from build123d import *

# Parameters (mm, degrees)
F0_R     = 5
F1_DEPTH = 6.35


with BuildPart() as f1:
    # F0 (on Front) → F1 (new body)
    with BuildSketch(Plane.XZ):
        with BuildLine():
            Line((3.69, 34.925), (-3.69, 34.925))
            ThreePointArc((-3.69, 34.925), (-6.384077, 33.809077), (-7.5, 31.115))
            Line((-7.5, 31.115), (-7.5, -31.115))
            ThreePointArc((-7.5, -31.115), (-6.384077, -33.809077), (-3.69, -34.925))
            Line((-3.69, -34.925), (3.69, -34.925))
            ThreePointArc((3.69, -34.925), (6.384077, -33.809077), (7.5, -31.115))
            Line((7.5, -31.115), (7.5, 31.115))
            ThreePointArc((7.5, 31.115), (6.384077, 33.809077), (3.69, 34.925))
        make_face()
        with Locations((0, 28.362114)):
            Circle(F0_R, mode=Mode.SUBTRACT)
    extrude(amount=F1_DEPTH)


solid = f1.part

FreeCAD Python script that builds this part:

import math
import FreeCAD as App
import Part
import Sketcher

V = App.Vector
Q = App.Units.Quantity

doc = App.newDocument("Part")
body = doc.addObject("PartDesign::Body", "Body")

# Sketch on XZ plane
sketch1 = doc.addObject("Sketcher::SketchObject", "Sketch")
body.addObject(sketch1)
sketch1.AttachmentSupport = (doc.XZ_Plane, [""])
sketch1.MapMode = "FlatFace"
sketch1.addGeometry(Part.LineSegment(V(3.7, 34.9, 0), V(-3.7, 34.9, 0)), False)
sketch1.addGeometry(Part.ArcOfCircle(Part.Circle(V(-3.7, 31.1, 0), V(0, 0, 1), 3.8), math.radians(90), math.radians(180)), False)
sketch1.addGeometry(Part.LineSegment(V(-7.5, 31.1, 0), V(-7.5, -31.1, 0)), False)
sketch1.addGeometry(Part.ArcOfCircle(Part.Circle(V(-3.7, -31.1, 0), V(0, 0, 1), 3.8), math.radians(180), math.radians(270)), False)
sketch1.addGeometry(Part.LineSegment(V(-3.7, -34.9, 0), V(3.7, -34.9, 0)), False)
sketch1.addGeometry(Part.ArcOfCircle(Part.Circle(V(3.7, -31.1, 0), V(0, 0, 1), 3.8), math.radians(-90), math.radians(0)), False)
sketch1.addGeometry(Part.LineSegment(V(7.5, -31.1, 0), V(7.5, 31.1, 0)), False)
sketch1.addGeometry(Part.ArcOfCircle(Part.Circle(V(3.7, 31.1, 0), V(0, 0, 1), 3.8), math.radians(0), math.radians(90)), False)
sketch1.addGeometry(Part.Circle(V(0, 28.4, 0), V(0, 0, 1), 5), False)
sketch1.addConstraint(Sketcher.Constraint("Tangent", 0, 2, 1, 1))
sketch1.addConstraint(Sketcher.Constraint("Tangent", 1, 2, 2, 1))
sketch1.addConstraint(Sketcher.Constraint("Tangent", 2, 2, 3, 1))
sketch1.addConstraint(Sketcher.Constraint("Tangent", 3, 2, 4, 1))
sketch1.addConstraint(Sketcher.Constraint("Tangent", 4, 2, 5, 1))
sketch1.addConstraint(Sketcher.Constraint("Tangent", 5, 2, 6, 1))
sketch1.addConstraint(Sketcher.Constraint("Tangent", 6, 2, 7, 1))
sketch1.addConstraint(Sketcher.Constraint("Tangent", 7, 2, 0, 1))
sketch1.addConstraint(Sketcher.Constraint("Horizontal", 0))
sketch1.addConstraint(Sketcher.Constraint("Vertical", 2))
sketch1.addConstraint(Sketcher.Constraint("Horizontal", 4))
sketch1.addConstraint(Sketcher.Constraint("Vertical", 6))
sketch1.addConstraint(Sketcher.Constraint("Equal", 1, 3))
sketch1.addConstraint(Sketcher.Constraint("Equal", 3, 5))
sketch1.addConstraint(Sketcher.Constraint("Equal", 5, 7))
sketch1.addConstraint(Sketcher.Constraint("Symmetric", 1, 3, 5, 3, -1, 1))
sketch1.addConstraint(Sketcher.Constraint("PointOnObject", 8, 3, -2))
sketch1.addConstraint(Sketcher.Constraint("Radius", 1, Q("0.15 in")))
sketch1.addConstraint(Sketcher.Constraint("DistanceY", 2, 2, 2, 1, Q("2.45 in")))
sketch1.addConstraint(Sketcher.Constraint("Diameter", 8, Q("10 mm")))
sketch1.addConstraint(Sketcher.Constraint("DistanceX", 0, 2, 0, 1, Q("7.38 mm")))
sketch1.addConstraint(Sketcher.Constraint("DistanceY", -1, 1, 8, 3, Q("28.362114 mm")))
pad1 = doc.addObject("PartDesign::Pad", "Pad")
body.addObject(pad1)
pad1.Profile = sketch1
pad1.Length = Q("0.25 in")

doc.recompute()
